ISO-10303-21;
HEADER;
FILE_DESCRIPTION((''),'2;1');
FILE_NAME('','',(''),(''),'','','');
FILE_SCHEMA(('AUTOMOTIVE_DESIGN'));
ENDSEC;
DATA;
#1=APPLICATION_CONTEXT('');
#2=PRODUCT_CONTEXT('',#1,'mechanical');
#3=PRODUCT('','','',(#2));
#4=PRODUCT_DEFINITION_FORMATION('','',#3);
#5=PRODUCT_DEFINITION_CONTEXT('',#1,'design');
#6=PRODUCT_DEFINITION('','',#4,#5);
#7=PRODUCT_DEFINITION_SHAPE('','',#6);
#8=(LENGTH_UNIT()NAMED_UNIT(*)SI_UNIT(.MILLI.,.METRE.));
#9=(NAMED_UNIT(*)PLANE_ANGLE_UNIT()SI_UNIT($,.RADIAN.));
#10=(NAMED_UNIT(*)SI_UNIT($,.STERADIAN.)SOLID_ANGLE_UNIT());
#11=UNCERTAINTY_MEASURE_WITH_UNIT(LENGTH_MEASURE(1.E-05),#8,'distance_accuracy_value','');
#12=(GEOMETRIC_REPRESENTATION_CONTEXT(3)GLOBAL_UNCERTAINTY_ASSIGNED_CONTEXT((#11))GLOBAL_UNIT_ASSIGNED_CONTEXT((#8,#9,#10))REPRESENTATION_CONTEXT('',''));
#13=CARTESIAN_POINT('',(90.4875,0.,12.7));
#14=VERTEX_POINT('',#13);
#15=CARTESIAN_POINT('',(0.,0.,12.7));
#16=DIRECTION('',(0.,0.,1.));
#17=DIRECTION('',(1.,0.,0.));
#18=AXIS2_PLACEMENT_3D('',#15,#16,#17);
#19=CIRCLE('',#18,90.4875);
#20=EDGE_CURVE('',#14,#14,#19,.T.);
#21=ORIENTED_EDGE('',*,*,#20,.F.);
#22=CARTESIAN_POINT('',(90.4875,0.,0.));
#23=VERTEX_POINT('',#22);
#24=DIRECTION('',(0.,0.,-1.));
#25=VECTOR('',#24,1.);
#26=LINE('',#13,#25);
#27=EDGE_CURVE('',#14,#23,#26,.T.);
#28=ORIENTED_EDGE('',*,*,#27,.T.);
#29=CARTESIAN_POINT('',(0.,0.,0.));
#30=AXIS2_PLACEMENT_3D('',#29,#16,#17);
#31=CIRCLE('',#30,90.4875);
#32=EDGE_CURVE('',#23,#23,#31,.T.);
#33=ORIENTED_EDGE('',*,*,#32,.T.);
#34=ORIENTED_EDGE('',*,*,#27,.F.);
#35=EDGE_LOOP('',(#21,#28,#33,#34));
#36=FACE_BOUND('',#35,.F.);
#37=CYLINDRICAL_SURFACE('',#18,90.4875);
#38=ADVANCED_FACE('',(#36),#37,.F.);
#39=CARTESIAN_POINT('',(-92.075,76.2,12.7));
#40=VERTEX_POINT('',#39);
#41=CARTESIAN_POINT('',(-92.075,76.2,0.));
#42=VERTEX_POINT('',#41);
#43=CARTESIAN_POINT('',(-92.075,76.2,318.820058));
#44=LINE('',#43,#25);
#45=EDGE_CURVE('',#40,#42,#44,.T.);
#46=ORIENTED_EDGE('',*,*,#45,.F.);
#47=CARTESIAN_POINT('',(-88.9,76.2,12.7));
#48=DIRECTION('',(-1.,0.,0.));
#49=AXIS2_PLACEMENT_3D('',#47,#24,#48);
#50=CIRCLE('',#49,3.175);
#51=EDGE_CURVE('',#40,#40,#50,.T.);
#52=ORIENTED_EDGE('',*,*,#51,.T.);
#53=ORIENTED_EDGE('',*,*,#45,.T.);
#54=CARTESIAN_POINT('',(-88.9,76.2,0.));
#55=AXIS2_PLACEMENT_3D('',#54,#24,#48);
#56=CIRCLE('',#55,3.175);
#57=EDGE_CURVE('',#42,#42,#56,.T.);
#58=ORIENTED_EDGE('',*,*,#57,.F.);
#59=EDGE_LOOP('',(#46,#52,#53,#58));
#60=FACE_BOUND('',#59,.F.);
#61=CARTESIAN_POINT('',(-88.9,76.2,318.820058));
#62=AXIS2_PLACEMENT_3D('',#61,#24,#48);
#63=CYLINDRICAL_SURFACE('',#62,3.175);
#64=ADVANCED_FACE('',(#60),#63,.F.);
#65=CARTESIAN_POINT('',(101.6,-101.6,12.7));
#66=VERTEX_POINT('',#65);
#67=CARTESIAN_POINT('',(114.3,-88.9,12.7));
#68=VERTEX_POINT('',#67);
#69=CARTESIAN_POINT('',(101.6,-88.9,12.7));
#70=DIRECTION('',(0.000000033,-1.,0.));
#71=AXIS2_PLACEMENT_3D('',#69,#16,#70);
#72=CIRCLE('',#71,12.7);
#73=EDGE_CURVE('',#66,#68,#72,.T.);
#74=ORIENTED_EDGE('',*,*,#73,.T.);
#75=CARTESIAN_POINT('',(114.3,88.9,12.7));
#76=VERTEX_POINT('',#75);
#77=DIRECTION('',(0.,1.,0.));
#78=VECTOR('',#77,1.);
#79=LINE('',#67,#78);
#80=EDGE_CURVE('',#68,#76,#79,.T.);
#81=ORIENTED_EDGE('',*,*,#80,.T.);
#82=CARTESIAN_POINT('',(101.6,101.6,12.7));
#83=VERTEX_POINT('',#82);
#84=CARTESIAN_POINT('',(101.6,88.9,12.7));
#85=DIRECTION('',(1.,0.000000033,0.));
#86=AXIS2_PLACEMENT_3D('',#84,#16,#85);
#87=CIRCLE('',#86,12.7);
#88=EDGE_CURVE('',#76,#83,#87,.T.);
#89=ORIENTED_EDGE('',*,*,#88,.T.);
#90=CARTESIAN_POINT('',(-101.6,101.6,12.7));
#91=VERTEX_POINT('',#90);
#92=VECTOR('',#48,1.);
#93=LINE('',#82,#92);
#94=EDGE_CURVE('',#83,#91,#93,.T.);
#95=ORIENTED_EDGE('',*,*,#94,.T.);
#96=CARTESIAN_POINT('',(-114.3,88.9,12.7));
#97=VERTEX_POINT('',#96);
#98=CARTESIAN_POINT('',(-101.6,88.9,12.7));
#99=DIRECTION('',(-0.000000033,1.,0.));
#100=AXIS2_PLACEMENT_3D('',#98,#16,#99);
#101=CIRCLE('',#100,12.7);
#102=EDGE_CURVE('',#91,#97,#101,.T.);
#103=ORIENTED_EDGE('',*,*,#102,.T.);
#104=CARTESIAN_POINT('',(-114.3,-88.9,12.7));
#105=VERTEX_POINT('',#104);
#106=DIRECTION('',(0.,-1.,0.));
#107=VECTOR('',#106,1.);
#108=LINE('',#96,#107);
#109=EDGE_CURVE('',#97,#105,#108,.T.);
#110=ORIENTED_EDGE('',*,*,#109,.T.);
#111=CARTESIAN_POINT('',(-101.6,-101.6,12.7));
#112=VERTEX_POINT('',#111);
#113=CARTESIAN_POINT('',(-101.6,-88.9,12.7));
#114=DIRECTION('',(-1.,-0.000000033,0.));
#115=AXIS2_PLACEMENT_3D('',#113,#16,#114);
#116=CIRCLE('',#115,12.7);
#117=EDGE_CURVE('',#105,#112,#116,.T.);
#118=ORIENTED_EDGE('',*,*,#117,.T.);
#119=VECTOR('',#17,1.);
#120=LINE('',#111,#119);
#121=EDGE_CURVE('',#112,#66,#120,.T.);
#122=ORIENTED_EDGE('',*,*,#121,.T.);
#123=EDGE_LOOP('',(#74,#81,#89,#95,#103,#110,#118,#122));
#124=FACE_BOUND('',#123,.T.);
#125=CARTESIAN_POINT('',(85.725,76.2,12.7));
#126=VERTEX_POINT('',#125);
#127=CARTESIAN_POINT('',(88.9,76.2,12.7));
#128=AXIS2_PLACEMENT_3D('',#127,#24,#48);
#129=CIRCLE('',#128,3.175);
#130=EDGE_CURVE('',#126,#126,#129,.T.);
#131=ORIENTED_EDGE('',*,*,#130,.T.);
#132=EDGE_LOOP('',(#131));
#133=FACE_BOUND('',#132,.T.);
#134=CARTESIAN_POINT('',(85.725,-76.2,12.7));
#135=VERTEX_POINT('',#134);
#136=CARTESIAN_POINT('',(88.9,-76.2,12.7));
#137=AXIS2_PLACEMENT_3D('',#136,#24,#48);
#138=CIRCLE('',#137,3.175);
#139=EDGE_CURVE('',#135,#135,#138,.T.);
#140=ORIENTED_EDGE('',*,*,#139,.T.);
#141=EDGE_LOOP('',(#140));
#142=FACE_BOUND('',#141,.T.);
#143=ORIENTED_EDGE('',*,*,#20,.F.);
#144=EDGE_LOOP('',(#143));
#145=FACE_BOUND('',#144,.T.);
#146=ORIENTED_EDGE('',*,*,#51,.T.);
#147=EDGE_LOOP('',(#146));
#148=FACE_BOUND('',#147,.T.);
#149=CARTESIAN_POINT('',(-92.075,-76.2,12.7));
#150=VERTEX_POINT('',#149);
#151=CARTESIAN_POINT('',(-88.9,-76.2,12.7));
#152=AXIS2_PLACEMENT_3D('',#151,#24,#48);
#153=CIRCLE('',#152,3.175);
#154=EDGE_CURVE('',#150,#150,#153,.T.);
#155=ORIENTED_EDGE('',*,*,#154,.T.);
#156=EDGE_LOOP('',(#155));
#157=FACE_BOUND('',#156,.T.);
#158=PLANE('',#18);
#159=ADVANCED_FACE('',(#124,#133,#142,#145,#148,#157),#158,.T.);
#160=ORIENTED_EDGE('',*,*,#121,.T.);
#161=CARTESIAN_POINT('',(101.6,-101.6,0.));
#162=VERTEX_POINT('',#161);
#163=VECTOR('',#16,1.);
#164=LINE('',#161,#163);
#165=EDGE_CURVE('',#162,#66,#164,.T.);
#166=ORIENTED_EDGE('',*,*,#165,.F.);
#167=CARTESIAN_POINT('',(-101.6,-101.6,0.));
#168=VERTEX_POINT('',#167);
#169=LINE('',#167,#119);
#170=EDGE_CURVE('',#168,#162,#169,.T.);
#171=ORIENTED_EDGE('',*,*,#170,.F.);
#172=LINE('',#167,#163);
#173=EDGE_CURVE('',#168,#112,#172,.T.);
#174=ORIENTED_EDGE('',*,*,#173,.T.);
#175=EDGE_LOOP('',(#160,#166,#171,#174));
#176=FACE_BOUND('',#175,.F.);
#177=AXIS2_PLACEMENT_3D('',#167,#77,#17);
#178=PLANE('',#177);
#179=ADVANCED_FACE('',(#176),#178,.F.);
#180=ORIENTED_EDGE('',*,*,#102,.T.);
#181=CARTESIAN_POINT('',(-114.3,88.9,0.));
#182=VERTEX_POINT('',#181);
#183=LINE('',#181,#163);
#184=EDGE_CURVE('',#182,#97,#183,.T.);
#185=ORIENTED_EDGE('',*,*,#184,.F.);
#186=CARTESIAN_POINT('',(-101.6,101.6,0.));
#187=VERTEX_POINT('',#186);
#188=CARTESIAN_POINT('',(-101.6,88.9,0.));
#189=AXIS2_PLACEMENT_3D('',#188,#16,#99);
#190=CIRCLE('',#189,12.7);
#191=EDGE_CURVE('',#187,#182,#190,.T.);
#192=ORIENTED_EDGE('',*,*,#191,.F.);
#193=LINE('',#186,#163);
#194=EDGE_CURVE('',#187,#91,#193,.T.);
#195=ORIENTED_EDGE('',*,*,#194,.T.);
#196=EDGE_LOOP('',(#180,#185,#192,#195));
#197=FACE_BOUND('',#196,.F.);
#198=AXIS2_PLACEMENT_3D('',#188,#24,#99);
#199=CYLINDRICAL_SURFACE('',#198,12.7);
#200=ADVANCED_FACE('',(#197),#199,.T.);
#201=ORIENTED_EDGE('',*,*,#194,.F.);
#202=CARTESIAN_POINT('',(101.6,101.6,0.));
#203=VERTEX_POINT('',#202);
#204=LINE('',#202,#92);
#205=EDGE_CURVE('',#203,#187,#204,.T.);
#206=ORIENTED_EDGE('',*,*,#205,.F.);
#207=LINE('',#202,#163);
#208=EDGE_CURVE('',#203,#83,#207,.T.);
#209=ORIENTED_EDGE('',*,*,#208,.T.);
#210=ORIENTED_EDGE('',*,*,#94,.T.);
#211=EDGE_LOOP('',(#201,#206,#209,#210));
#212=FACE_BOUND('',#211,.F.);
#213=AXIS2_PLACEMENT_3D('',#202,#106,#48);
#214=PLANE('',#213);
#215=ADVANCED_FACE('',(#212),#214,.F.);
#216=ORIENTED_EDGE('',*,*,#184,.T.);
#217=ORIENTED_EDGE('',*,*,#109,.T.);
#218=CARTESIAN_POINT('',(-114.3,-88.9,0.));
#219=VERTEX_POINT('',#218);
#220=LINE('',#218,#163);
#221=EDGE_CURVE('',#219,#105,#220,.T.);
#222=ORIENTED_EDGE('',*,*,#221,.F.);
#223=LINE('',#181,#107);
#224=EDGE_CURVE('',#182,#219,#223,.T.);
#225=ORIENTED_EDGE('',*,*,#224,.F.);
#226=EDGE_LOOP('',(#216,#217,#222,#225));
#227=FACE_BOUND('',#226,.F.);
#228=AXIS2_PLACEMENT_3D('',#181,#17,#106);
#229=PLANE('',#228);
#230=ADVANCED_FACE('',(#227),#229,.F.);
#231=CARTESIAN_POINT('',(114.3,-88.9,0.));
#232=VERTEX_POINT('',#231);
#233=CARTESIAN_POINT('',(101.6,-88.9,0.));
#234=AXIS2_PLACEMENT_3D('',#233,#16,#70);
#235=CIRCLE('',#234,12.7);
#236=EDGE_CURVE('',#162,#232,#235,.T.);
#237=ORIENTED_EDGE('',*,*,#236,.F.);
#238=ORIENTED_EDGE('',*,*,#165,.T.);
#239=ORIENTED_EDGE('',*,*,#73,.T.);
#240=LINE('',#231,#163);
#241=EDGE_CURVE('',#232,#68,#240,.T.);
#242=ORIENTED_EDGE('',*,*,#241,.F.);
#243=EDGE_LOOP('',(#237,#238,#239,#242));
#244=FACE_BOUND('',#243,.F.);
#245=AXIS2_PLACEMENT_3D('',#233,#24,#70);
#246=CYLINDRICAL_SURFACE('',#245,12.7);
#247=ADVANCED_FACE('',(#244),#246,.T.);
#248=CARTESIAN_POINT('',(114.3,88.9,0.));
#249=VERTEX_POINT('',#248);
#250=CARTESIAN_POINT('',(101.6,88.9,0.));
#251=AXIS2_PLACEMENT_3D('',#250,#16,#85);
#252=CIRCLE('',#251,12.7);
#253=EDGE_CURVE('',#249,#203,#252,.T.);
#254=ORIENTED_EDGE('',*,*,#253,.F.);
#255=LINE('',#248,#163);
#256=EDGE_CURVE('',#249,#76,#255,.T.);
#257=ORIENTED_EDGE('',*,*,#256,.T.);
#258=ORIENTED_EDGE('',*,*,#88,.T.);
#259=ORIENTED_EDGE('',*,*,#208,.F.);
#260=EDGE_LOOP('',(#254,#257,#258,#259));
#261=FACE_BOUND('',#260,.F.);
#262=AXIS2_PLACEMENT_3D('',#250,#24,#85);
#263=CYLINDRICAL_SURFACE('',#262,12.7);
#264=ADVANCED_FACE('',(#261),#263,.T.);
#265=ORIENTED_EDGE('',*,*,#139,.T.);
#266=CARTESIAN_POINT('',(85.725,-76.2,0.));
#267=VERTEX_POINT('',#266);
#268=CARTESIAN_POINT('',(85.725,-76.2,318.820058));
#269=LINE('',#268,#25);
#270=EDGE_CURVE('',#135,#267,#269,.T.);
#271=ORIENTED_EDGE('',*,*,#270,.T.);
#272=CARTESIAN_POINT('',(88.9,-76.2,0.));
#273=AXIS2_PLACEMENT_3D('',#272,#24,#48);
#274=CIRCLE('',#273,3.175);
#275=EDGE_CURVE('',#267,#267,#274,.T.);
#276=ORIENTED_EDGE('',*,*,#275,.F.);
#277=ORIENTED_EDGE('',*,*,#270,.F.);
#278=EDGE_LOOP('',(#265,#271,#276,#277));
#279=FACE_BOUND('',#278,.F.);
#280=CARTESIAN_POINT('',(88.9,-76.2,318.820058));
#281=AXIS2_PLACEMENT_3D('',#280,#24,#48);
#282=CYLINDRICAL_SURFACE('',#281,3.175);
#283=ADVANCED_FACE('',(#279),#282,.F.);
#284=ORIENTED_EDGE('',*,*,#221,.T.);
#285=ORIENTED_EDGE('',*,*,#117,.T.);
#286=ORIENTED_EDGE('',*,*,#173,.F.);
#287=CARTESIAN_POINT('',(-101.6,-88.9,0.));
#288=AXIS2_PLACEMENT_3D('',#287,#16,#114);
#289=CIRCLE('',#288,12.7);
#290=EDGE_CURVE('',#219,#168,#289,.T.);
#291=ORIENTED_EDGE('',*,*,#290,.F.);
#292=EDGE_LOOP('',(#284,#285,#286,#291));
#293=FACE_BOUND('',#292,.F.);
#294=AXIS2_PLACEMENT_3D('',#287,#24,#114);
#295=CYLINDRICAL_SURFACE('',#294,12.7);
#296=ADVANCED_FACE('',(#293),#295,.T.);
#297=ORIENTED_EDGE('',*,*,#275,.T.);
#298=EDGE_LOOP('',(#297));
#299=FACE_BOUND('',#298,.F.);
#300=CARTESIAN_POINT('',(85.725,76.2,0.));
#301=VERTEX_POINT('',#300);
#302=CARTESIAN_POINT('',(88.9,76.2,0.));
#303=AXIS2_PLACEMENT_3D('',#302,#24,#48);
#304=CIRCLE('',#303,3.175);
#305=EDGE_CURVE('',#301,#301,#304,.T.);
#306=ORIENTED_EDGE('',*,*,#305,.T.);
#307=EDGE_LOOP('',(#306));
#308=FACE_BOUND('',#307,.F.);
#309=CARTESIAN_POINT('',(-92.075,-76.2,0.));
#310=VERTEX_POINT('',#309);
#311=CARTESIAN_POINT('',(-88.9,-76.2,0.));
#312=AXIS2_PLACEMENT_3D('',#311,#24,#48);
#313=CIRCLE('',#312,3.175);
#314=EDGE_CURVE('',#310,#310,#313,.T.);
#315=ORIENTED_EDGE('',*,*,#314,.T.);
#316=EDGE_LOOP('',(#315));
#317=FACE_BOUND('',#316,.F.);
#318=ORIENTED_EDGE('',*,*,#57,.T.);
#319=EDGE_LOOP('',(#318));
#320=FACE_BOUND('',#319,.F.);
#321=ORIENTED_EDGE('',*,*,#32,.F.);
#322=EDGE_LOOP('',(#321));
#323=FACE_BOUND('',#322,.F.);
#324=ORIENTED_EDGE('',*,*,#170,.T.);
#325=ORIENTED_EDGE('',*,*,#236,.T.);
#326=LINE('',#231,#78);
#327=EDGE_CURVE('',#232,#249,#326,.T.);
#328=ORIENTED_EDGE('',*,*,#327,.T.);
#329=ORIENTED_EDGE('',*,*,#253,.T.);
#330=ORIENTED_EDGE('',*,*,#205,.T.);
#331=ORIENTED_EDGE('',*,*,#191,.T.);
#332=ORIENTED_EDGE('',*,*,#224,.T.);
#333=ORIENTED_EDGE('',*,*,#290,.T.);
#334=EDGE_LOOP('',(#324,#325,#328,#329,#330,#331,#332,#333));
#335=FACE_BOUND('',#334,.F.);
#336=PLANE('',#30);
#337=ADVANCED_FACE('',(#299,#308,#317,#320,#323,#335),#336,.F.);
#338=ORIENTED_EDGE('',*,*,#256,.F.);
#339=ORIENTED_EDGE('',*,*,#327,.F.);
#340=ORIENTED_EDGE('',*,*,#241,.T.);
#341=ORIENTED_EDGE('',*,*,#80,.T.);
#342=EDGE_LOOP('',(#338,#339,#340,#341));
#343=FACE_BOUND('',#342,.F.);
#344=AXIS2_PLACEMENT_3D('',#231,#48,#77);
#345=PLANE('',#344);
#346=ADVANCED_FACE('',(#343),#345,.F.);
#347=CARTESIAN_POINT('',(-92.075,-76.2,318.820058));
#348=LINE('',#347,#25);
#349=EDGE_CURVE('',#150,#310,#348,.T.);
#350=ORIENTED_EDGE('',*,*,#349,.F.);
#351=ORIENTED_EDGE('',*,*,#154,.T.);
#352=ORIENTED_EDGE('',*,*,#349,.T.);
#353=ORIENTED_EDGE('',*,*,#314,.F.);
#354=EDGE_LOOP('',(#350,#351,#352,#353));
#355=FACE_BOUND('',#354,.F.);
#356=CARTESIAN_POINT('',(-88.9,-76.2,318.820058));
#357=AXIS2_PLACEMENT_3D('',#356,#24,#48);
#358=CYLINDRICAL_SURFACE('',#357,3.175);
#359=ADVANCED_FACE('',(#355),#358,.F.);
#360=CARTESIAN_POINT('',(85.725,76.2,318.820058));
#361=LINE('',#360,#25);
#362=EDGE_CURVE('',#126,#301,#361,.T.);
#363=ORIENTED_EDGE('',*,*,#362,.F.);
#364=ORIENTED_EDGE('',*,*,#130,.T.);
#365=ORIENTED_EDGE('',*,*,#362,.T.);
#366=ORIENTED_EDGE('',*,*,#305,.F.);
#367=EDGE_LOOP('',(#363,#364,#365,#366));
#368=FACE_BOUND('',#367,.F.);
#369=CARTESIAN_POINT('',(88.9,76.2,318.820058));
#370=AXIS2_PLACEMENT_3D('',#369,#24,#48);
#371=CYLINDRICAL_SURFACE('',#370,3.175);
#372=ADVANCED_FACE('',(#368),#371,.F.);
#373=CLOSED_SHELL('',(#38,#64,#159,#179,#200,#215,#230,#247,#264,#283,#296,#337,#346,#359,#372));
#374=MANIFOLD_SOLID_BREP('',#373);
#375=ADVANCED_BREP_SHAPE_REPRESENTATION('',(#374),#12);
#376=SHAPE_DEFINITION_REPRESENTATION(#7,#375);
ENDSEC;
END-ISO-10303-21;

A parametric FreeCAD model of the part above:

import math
import FreeCAD as App
import Part
import Sketcher

V = App.Vector
Q = App.Units.Quantity

doc = App.newDocument("Part")
body = doc.addObject("PartDesign::Body", "Body")

# Sketch on XY plane
sketch1 = doc.addObject("Sketcher::SketchObject", "Sketch")
body.addObject(sketch1)
sketch1.AttachmentSupport = (doc.XY_Plane, [""])
sketch1.MapMode = "FlatFace"
sketch1.addGeometry(Part.LineSegment(V(102, 102, 0), V(-102, 102, 0)), False)
sketch1.addGeometry(Part.ArcOfCircle(Part.Circle(V(-102, 89, 0), V(0, 0, 1), 13), math.radians(90), math.radians(180)), False)
sketch1.addGeometry(Part.LineSegment(V(-114, 89, 0), V(-114, -89, 0)), False)
sketch1.addGeometry(Part.ArcOfCircle(Part.Circle(V(-102, -89, 0), V(0, 0, 1), 13), math.radians(-180), math.radians(-90)), False)
sketch1.addGeometry(Part.LineSegment(V(-102, -102, 0), V(102, -102, 0)), False)
sketch1.addGeometry(Part.ArcOfCircle(Part.Circle(V(102, -89, 0), V(0, 0, 1), 13), math.radians(-90), math.radians(0)), False)
sketch1.addGeometry(Part.LineSegment(V(114, -89, 0), V(114, 89, 0)), False)
sketch1.addGeometry(Part.ArcOfCircle(Part.Circle(V(102, 89, 0), V(0, 0, 1), 13), math.radians(0), math.radians(90)), False)
sketch1.addConstraint(Sketcher.Constraint("Tangent", 0, 2, 1, 1))
sketch1.addConstraint(Sketcher.Constraint("Tangent", 1, 2, 2, 1))
sketch1.addConstraint(Sketcher.Constraint("Tangent", 2, 2, 3, 1))
sketch1.addConstraint(Sketcher.Constraint("Tangent", 3, 2, 4, 1))
sketch1.addConstraint(Sketcher.Constraint("Tangent", 4, 2, 5, 1))
sketch1.addConstraint(Sketcher.Constraint("Tangent", 5, 2, 6, 1))
sketch1.addConstraint(Sketcher.Constraint("Tangent", 6, 2, 7, 1))
sketch1.addConstraint(Sketcher.Constraint("Tangent", 7, 2, 0, 1))
sketch1.addConstraint(Sketcher.Constraint("Horizontal", 0))
sketch1.addConstraint(Sketcher.Constraint("Vertical", 2))
sketch1.addConstraint(Sketcher.Constraint("Horizontal", 4))
sketch1.addConstraint(Sketcher.Constraint("Vertical", 6))
sketch1.addConstraint(Sketcher.Constraint("Equal", 1, 3))
sketch1.addConstraint(Sketcher.Constraint("Equal", 3, 5))
sketch1.addConstraint(Sketcher.Constraint("Equal", 5, 7))
sketch1.addConstraint(Sketcher.Constraint("Symmetric", 1, 3, 5, 3, -1, 1))
sketch1.addConstraint(Sketcher.Constraint("Radius", 1, Q("0.5 in")))
sketch1.addConstraint(Sketcher.Constraint("DistanceX", 0, 2, 0, 1, Q("8 in")))
sketch1.addConstraint(Sketcher.Constraint("DistanceY", 2, 2, 2, 1, Q("7 in")))
pad1 = doc.addObject("PartDesign::Pad", "Pad")
body.addObject(pad1)
pad1.Profile = sketch1
pad1.Length = Q("0.5 in")

# Sketch on XY plane
sketch2 = doc.addObject("Sketcher::SketchObject", "Sketch001")
body.addObject(sketch2)
sketch2.AttachmentSupport = (doc.XY_Plane, [""])
sketch2.MapMode = "FlatFace"
sketch2.AttachmentOffset = App.Placement(V(0, 0, 0.5 * 25.4), App.Rotation())
sketch2.addGeometry(Part.Circle(V(0, 0, 0), V(0, 0, 1), 90), False)
sketch2.addConstraint(Sketcher.Constraint("Coincident", 0, 3, -1, 1))
sketch2.addConstraint(Sketcher.Constraint("Diameter", 0, Q("7.125 in")))
pocket1 = doc.addObject("PartDesign::Pocket", "Pocket")
body.addObject(pocket1)
pocket1.Profile = sketch2
pocket1.Length = Q("0.5 in")

# Sketch on XY plane
sketch3 = doc.addObject("Sketcher::SketchObject", "Sketch002")
body.addObject(sketch3)
sketch3.AttachmentSupport = (doc.XY_Plane, [""])
sketch3.MapMode = "FlatFace"
sketch3.AttachmentOffset = App.Placement(V(0, 0, 0.5 * 25.4), App.Rotation())
sketch3.addGeometry(Part.Circle(V(-88.9, 76.2, 0), V(0, 0, 1), 3.2), False)
sketch3.addGeometry(Part.Circle(V(88.9, 76.2, 0), V(0, 0, 1), 3.2), False)
sketch3.addGeometry(Part.Circle(V(88.9, -76.2, 0), V(0, 0, 1), 3.2), False)
sketch3.addGeometry(Part.Circle(V(-88.9, -76.2, 0), V(0, 0, 1), 3.2), False)
sketch3.addConstraint(Sketcher.Constraint("Equal", 0, 1))
sketch3.addConstraint(Sketcher.Constraint("Equal", 1, 2))
sketch3.addConstraint(Sketcher.Constraint("Equal", 2, 3))
sketch3.addConstraint(Sketcher.Constraint("Symmetric", 0, 3, 2, 3, -1, 1))
sketch3.addConstraint(Sketcher.Constraint("Symmetric", 1, 3, 3, 3, -1, 1))
sketch3.addConstraint(Sketcher.Constraint("Symmetric", 0, 3, 1, 3, -2))
sketch3.addConstraint(Sketcher.Constraint("Diameter", 0, Q("0.25 in")))
sketch3.addConstraint(Sketcher.Constraint("DistanceY", -1, 1, 0, 3, Q("3 in")))
sketch3.addConstraint(Sketcher.Constraint("DistanceX", 0, 3, 1, 3, Q("7 in")))
doc.recompute()
hole = doc.addObject("PartDesign::Hole", "Hole")
body.addObject(hole)
hole.Profile = sketch3
hole.ThreadType = "None"
hole.Diameter = Q("0.25 in")
hole.DepthType = "ThroughAll"

doc.recompute()
